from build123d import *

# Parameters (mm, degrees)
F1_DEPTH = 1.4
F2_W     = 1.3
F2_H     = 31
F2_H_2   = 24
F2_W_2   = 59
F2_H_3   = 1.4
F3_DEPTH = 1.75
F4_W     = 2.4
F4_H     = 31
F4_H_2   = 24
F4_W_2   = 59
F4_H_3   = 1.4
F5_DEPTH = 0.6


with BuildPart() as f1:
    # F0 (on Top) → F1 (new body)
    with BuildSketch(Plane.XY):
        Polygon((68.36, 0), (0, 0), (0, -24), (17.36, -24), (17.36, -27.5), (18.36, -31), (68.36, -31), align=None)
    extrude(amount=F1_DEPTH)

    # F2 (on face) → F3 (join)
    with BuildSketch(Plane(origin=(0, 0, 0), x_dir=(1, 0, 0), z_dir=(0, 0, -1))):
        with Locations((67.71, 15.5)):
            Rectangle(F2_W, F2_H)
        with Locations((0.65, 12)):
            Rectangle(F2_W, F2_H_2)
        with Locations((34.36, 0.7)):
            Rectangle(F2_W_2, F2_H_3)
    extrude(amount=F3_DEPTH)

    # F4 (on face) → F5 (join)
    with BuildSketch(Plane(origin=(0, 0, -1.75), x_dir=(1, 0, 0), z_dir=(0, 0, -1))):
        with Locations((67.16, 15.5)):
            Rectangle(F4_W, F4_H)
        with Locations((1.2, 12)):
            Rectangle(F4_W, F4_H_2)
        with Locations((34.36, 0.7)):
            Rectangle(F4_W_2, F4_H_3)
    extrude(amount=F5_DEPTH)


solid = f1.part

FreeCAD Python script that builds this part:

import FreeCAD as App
import Part
import Sketcher
from FreeCAD import Vector

doc = App.newDocument("Part")
body = doc.addObject("PartDesign::Body", "Body")

# Sketch on XY plane
sketch1 = body.newObject("Sketcher::SketchObject", "Sketch")
sketch1.AttachmentSupport = (doc.getObject("XY_Plane"), [""])
sketch1.MapMode = "FlatFace"
sketch1.addGeometry([
    Part.LineSegment(Vector(68.4, 0, 0), Vector(0, 0, 0)),  # 0
    Part.LineSegment(Vector(0, 0, 0), Vector(0, -24, 0)),  # 1
    Part.LineSegment(Vector(0, -24, 0), Vector(17.4, -24, 0)),  # 2
    Part.LineSegment(Vector(17.4, -24, 0), Vector(17.4, -27.5, 0)),  # 3
    Part.LineSegment(Vector(17.4, -27.5, 0), Vector(18.4, -31, 0)),  # 4
    Part.LineSegment(Vector(18.4, -31, 0), Vector(68.4, -31, 0)),  # 5
    Part.LineSegment(Vector(68.4, -31, 0), Vector(68.4, 0, 0)),  # 6
], False)
sketch1.addConstraint([
    Sketcher.Constraint("Coincident", 0, 2, 1, 1),
    Sketcher.Constraint("Coincident", 1, 2, 2, 1),
    Sketcher.Constraint("Coincident", 2, 2, 3, 1),
    Sketcher.Constraint("Coincident", 3, 2, 4, 1),
    Sketcher.Constraint("Coincident", 4, 2, 5, 1),
    Sketcher.Constraint("Coincident", 5, 2, 6, 1),
    Sketcher.Constraint("Coincident", 6, 2, 0, 1),
    Sketcher.Constraint("Horizontal", 0),
    Sketcher.Constraint("Vertical", 1),
    Sketcher.Constraint("Horizontal", 2),
    Sketcher.Constraint("Vertical", 3),
    Sketcher.Constraint("Horizontal", 5),
    Sketcher.Constraint("Vertical", 6),
    Sketcher.Constraint("Coincident", 0, 2, -1, 1),
    Sketcher.Constraint("DistanceX", 5, 1, 5, 2, 50.0),
    Sketcher.Constraint("DistanceY", 1, 2, 1, 1, 24.0),
    Sketcher.Constraint("DistanceY", 6, 1, 6, 2, 31.0),
    Sketcher.Constraint("DistanceY", 3, 2, 3, 1, 3.5),
    Sketcher.Constraint("DistanceX", 3, 2, 4, 2, 1.0),
    Sketcher.Constraint("DistanceX", 0, 2, 0, 1, 68.36),
])
pad1 = body.newObject("PartDesign::Pad", "Pad")
pad1.Profile = sketch1
pad1.Length = 1.4

# Sketch on XY plane
sketch2 = body.newObject("Sketcher::SketchObject", "Sketch001")
sketch2.AttachmentSupport = (doc.getObject("XY_Plane"), [""])
sketch2.MapMode = "FlatFace"
sketch2.addGeometry([
    Part.LineSegment(Vector(67.1, -31, 0), Vector(67.1, 0, 0)),  # 0
    Part.LineSegment(Vector(67.1, 0, 0), Vector(68.4, 0, 0)),  # 1
    Part.LineSegment(Vector(68.4, 0, 0), Vector(68.4, -31, 0)),  # 2
    Part.LineSegment(Vector(68.4, -31, 0), Vector(67.1, -31, 0)),  # 3
    Part.LineSegment(Vector(0, -24, 0), Vector(0, 0, 0)),  # 4
    Part.LineSegment(Vector(0, 0, 0), Vector(1.3, 0, 0)),  # 5
    Part.LineSegment(Vector(1.3, 0, 0), Vector(1.3, -24, 0)),  # 6
    Part.LineSegment(Vector(1.3, -24, 0), Vector(0, -24, 0)),  # 7
    Part.LineSegment(Vector(4.9, -1.4, 0), Vector(4.9, 0, 0)),  # 8
    Part.LineSegment(Vector(4.9, 0, 0), Vector(63.9, 0, 0)),  # 9
    Part.LineSegment(Vector(63.9, 0, 0), Vector(63.9, -1.4, 0)),  # 10
    Part.LineSegment(Vector(63.9, -1.4, 0), Vector(4.9, -1.4, 0)),  # 11
], False)
sketch2.addConstraint([
    Sketcher.Constraint("Coincident", 0, 2, 1, 1),
    Sketcher.Constraint("Coincident", 1, 2, 2, 1),
    Sketcher.Constraint("Coincident", 2, 2, 3, 1),
    Sketcher.Constraint("Coincident", 3, 2, 0, 1),
    Sketcher.Constraint("Coincident", 4, 2, 5, 1),
    Sketcher.Constraint("Coincident", 5, 2, 6, 1),
    Sketcher.Constraint("Coincident", 6, 2, 7, 1),
    Sketcher.Constraint("Coincident", 7, 2, 4, 1),
    Sketcher.Constraint("Coincident", 8, 2, 9, 1),
    Sketcher.Constraint("Coincident", 9, 2, 10, 1),
    Sketcher.Constraint("Coincident", 10, 2, 11, 1),
    Sketcher.Constraint("Coincident", 11, 2, 8, 1),
    Sketcher.Constraint("Vertical", 0),
    Sketcher.Constraint("Horizontal", 1),
    Sketcher.Constraint("Vertical", 2),
    Sketcher.Constraint("Horizontal", 3),
    Sketcher.Constraint("Vertical", 4),
    Sketcher.Constraint("Horizontal", 5),
    Sketcher.Constraint("Vertical", 6),
    Sketcher.Constraint("Horizontal", 7),
    Sketcher.Constraint("Vertical", 8),
    Sketcher.Constraint("Horizontal", 9),
    Sketcher.Constraint("Vertical", 10),
    Sketcher.Constraint("Horizontal", 11),
    Sketcher.Constraint("Coincident", 4, 2, -1, 1),
    Sketcher.Constraint("PointOnObject", 0, 2, -1),
    Sketcher.Constraint("PointOnObject", 8, 2, -1),
    Sketcher.Constraint("Equal", 3, 5),
    Sketcher.Constraint("DistanceX", 9, 1, 9, 2, 59.0),
    Sketcher.Constraint("DistanceY", 0, 1, 0, 2, 31.0),
    Sketcher.Constraint("DistanceY", 4, 1, 4, 2, 24.0),
    Sketcher.Constraint("DistanceX", 1, 1, 1, 2, 1.3),
    Sketcher.Constraint("DistanceY", 8, 1, 8, 2, 1.4),
    Sketcher.Constraint("DistanceX", 8, 2, 0, 2, 62.2),
    Sketcher.Constraint("DistanceX", -1, 1, 0, 2, 67.06),
])
pad2 = body.newObject("PartDesign::Pad", "Pad001")
pad2.Profile = sketch2
pad2.Length = 1.75
pad2.Reversed = True

# Sketch on XY plane
sketch3 = body.newObject("Sketcher::SketchObject", "Sketch002")
sketch3.AttachmentSupport = (doc.getObject("XY_Plane"), [""])
sketch3.MapMode = "FlatFace"
sketch3.AttachmentOffset = App.Placement(Vector(0, 0, -1.75), App.Rotation())
sketch3.addGeometry([
    Part.LineSegment(Vector(66, -31, 0), Vector(66, 0, 0)),  # 0
    Part.LineSegment(Vector(66, 0, 0), Vector(68.4, 0, 0)),  # 1
    Part.LineSegment(Vector(68.4, 0, 0), Vector(68.4, -31, 0)),  # 2
    Part.LineSegment(Vector(68.4, -31, 0), Vector(66, -31, 0)),  # 3
    Part.LineSegment(Vector(0, -24, 0), Vector(0, 0, 0)),  # 4
    Part.LineSegment(Vector(0, 0, 0), Vector(2.4, 0, 0)),  # 5
    Part.LineSegment(Vector(2.4, 0, 0), Vector(2.4, -24, 0)),  # 6
    Part.LineSegment(Vector(2.4, -24, 0), Vector(0, -24, 0)),  # 7
    Part.LineSegment(Vector(4.9, -1.4, 0), Vector(4.9, 0, 0)),  # 8
    Part.LineSegment(Vector(4.9, 0, 0), Vector(63.9, 0, 0)),  # 9
    Part.LineSegment(Vector(63.9, 0, 0), Vector(63.9, -1.4, 0)),  # 10
    Part.LineSegment(Vector(63.9, -1.4, 0), Vector(4.9, -1.4, 0)),  # 11
], False)
sketch3.addConstraint([
    Sketcher.Constraint("Coincident", 0, 2, 1, 1),
    Sketcher.Constraint("Coincident", 1, 2, 2, 1),
    Sketcher.Constraint("Coincident", 2, 2, 3, 1),
    Sketcher.Constraint("Coincident", 3, 2, 0, 1),
    Sketcher.Constraint("Coincident", 4, 2, 5, 1),
    Sketcher.Constraint("Coincident", 5, 2, 6, 1),
    Sketcher.Constraint("Coincident", 6, 2, 7, 1),
    Sketcher.Constraint("Coincident", 7, 2, 4, 1),
    Sketcher.Constraint("Coincident", 8, 2, 9, 1),
    Sketcher.Constraint("Coincident", 9, 2, 10, 1),
    Sketcher.Constraint("Coincident", 10, 2, 11, 1),
    Sketcher.Constraint("Coincident", 11, 2, 8, 1),
    Sketcher.Constraint("Vertical", 0),
    Sketcher.Constraint("Horizontal", 1),
    Sketcher.Constraint("Vertical", 2),
    Sketcher.Constraint("Horizontal", 3),
    Sketcher.Constraint("Vertical", 4),
    Sketcher.Constraint("Horizontal", 5),
    Sketcher.Constraint("Vertical", 6),
    Sketcher.Constraint("Horizontal", 7),
    Sketcher.Constraint("Vertical", 8),
    Sketcher.Constraint("Horizontal", 9),
    Sketcher.Constraint("Vertical", 10),
    Sketcher.Constraint("Horizontal", 11),
    Sketcher.Constraint("Coincident", 4, 2, -1, 1),
    Sketcher.Constraint("PointOnObject", 0, 2, -1),
    Sketcher.Constraint("PointOnObject", 8, 2, -1),
    Sketcher.Constraint("Equal", 3, 5),
    Sketcher.Constraint("DistanceX", 9, 1, 9, 2, 59.0),
    Sketcher.Constraint("DistanceY", 0, 1, 0, 2, 31.0),
    Sketcher.Constraint("DistanceY", 4, 1, 4, 2, 24.0),
    Sketcher.Constraint("DistanceX", 1, 1, 1, 2, 2.4),
    Sketcher.Constraint("DistanceY", 8, 1, 8, 2, 1.4),
    Sketcher.Constraint("DistanceX", 8, 2, 0, 2, 61.1),
    Sketcher.Constraint("DistanceX", -1, 1, 0, 2, 65.96),
])
pad3 = body.newObject("PartDesign::Pad", "Pad002")
pad3.Profile = sketch3
pad3.Length = 0.6
pad3.Reversed = True

doc.recompute()
